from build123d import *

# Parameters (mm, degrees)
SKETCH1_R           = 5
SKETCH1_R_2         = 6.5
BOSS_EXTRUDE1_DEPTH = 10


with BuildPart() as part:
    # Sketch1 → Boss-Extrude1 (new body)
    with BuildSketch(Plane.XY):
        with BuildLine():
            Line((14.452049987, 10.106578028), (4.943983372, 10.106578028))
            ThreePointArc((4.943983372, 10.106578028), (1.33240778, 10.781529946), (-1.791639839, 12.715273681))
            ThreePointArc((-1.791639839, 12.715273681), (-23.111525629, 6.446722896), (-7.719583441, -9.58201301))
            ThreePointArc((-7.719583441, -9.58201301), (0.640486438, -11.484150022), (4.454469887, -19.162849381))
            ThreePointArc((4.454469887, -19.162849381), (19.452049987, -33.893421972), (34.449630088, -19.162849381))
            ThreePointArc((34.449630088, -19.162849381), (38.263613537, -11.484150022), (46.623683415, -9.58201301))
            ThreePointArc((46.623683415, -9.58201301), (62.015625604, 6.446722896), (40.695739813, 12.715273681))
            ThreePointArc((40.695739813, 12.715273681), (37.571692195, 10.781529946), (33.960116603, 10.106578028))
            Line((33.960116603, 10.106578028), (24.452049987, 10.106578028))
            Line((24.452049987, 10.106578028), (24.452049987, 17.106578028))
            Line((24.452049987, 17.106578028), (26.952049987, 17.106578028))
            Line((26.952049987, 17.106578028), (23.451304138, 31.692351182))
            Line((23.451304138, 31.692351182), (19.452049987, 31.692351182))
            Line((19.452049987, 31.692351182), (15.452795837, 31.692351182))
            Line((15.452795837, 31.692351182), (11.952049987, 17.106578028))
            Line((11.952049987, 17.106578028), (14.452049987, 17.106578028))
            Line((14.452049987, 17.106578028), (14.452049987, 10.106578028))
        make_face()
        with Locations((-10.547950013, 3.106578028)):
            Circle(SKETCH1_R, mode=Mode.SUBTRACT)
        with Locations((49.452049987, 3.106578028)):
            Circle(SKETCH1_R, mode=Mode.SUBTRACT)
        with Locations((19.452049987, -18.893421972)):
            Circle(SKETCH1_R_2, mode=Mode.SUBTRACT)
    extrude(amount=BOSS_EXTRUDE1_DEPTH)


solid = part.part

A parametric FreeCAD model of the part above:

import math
import FreeCAD as App
import Part
import Sketcher

V = App.Vector
Q = App.Units.Quantity

doc = App.newDocument("Part")
body = doc.addObject("PartDesign::Body", "Body")

# Sketch on XY plane
sketch1 = body.newObject("Sketcher::SketchObject", "Sketch")
sketch1.AttachmentSupport = (doc.getObject("XY_Plane"), [""])
sketch1.MapMode = "FlatFace"
sketch1.addGeometry([
    Part.LineSegment(V(14.45205, 10.106578, 0), V(4.943983, 10.106578, 0)),  # 0
    Part.ArcOfCircle(Part.Circle(V(4.943983, 20.106578, 0), V(0, 0, 1), 10), math.radians(-132.342605), math.radians(-90)),  # 1
    Part.ArcOfCircle(Part.Circle(V(-10.54795, 3.106578, 0), V(0, 0, 1), 13), math.radians(47.657395), math.radians(282.566151)),  # 2
    Part.ArcOfCircle(Part.Circle(V(-5.543917, -19.342468, 0), V(0, 0, 1), 10), math.radians(1.029192), math.radians(102.566151)),  # 3
    Part.ArcOfCircle(Part.Circle(V(19.45205, -18.893422, 0), V(0, 0, 1), 15), math.radians(-178.970808), math.radians(-1.029192)),  # 4
    Part.ArcOfCircle(Part.Circle(V(44.448017, -19.342468, 0), V(0, 0, 1), 10), math.radians(77.433849), math.radians(178.970808)),  # 5
    Part.ArcOfCircle(Part.Circle(V(49.45205, 3.106578, 0), V(0, 0, 1), 13), math.radians(-102.566151), math.radians(132.342605)),  # 6
    Part.ArcOfCircle(Part.Circle(V(33.960117, 20.106578, 0), V(0, 0, 1), 10), math.radians(-90), math.radians(-47.657395)),  # 7
    Part.LineSegment(V(33.960117, 10.106578, 0), V(24.45205, 10.106578, 0)),  # 8
    Part.LineSegment(V(24.45205, 10.106578, 0), V(24.45205, 17.106578, 0)),  # 9
    Part.LineSegment(V(24.45205, 17.106578, 0), V(26.95205, 17.106578, 0)),  # 10
    Part.LineSegment(V(26.95205, 17.106578, 0), V(23.451304, 31.692351, 0)),  # 11
    Part.LineSegment(V(23.451304, 31.692351, 0), V(15.452796, 31.692351, 0)),  # 12
    Part.LineSegment(V(15.452796, 31.692351, 0), V(11.95205, 17.106578, 0)),  # 13
    Part.LineSegment(V(11.95205, 17.106578, 0), V(14.45205, 17.106578, 0)),  # 14
    Part.LineSegment(V(14.45205, 17.106578, 0), V(14.45205, 10.106578, 0)),  # 15
    Part.Circle(V(19.45205, -18.893422, 0), V(0, 0, 1), 6.5),  # 16
    Part.Circle(V(-10.54795, 3.106578, 0), V(0, 0, 1), 5),  # 17
    Part.Circle(V(49.45205, 3.106578, 0), V(0, 0, 1), 5),  # 18
], False)
sketch1.addConstraint([
    Sketcher.Constraint("Tangent", 0, 2, 1, 2),
    Sketcher.Constraint("Tangent", 1, 1, 2, 1),
    Sketcher.Constraint("Tangent", 2, 2, 3, 2),
    Sketcher.Constraint("Tangent", 3, 1, 4, 1),
    Sketcher.Constraint("Tangent", 4, 2, 5, 2),
    Sketcher.Constraint("Tangent", 5, 1, 6, 1),
    Sketcher.Constraint("Tangent", 6, 2, 7, 2),
    Sketcher.Constraint("Tangent", 7, 1, 8, 1),
    Sketcher.Constraint("Coincident", 8, 2, 9, 1),
    Sketcher.Constraint("Coincident", 9, 2, 10, 1),
    Sketcher.Constraint("Coincident", 10, 2, 11, 1),
    Sketcher.Constraint("Coincident", 11, 2, 12, 1),
    Sketcher.Constraint("Coincident", 12, 2, 13, 1),
    Sketcher.Constraint("Coincident", 13, 2, 14, 1),
    Sketcher.Constraint("Coincident", 14, 2, 15, 1),
    Sketcher.Constraint("Coincident", 15, 2, 0, 1),
    Sketcher.Constraint("Horizontal", 0),
    Sketcher.Constraint("Horizontal", 8),
    Sketcher.Constraint("Vertical", 9),
    Sketcher.Constraint("Horizontal", 10),
    Sketcher.Constraint("Horizontal", 12),
    Sketcher.Constraint("Horizontal", 14),
    Sketcher.Constraint("Vertical", 15),
    Sketcher.Constraint("Coincident", 16, 3, 4, 3),
    Sketcher.Constraint("Coincident", 17, 3, 2, 3),
    Sketcher.Constraint("Coincident", 18, 3, 6, 3),
    Sketcher.Constraint("Equal", 1, 3),
    Sketcher.Constraint("Equal", 3, 5),
    Sketcher.Constraint("Equal", 2, 6),
    Sketcher.Constraint("Equal", 5, 7),
    Sketcher.Constraint("Equal", 17, 18),
    Sketcher.Constraint("Horizontal", 3, 3, 5, 3),
    Sketcher.Constraint("Horizontal", 2, 3, 6, 3),
    Sketcher.Constraint("Horizontal", 1, 3, 7, 3),
    Sketcher.Constraint("Horizontal", 10, 2, 13, 2),
    Sketcher.Constraint("Equal", 0, 8),
    Sketcher.Constraint("Equal", 10, 14),
    Sketcher.Constraint("Equal", 11, 13),
    Sketcher.Constraint("Diameter", 16, Q("13 mm")),
    Sketcher.Constraint("Diameter", 17, Q("10 mm")),
    Sketcher.Constraint("Radius", 1, Q("10 mm")),
    Sketcher.Constraint("Radius", 2, Q("13 mm")),
    Sketcher.Constraint("Radius", 4, Q("15 mm")),
    Sketcher.Constraint("DistanceY", 9, 1, 9, 2, Q("7 mm")),
    Sketcher.Constraint("Distance", 11, Q("15 mm")),
    Sketcher.Constraint("DistanceX", 10, 1, 10, 2, Q("2.5 mm")),
    Sketcher.Constraint("DistanceY", 2, 3, 1, 3, Q("17 mm")),
    Sketcher.Constraint("DistanceX", 2, 3, 4, 3, Q("30 mm")),
    Sketcher.Constraint("DistanceY", 4, 3, 2, 3, Q("22 mm")),
    Sketcher.Constraint("DistanceX", 14, 2, 9, 2, Q("10 mm")),
    Sketcher.Constraint("DistanceX", 12, 2, 12, 1, Q("7.998508 mm")),
    Sketcher.Constraint("DistanceY", -1, 1, 1, 3, Q("20.106578 mm")),
    Sketcher.Constraint("DistanceX", 2, 3, -1, 1, Q("10.54795 mm")),
])
pad1 = body.newObject("PartDesign::Pad", "Pad")
pad1.Profile = sketch1
pad1.Length = 10

doc.recompute()
